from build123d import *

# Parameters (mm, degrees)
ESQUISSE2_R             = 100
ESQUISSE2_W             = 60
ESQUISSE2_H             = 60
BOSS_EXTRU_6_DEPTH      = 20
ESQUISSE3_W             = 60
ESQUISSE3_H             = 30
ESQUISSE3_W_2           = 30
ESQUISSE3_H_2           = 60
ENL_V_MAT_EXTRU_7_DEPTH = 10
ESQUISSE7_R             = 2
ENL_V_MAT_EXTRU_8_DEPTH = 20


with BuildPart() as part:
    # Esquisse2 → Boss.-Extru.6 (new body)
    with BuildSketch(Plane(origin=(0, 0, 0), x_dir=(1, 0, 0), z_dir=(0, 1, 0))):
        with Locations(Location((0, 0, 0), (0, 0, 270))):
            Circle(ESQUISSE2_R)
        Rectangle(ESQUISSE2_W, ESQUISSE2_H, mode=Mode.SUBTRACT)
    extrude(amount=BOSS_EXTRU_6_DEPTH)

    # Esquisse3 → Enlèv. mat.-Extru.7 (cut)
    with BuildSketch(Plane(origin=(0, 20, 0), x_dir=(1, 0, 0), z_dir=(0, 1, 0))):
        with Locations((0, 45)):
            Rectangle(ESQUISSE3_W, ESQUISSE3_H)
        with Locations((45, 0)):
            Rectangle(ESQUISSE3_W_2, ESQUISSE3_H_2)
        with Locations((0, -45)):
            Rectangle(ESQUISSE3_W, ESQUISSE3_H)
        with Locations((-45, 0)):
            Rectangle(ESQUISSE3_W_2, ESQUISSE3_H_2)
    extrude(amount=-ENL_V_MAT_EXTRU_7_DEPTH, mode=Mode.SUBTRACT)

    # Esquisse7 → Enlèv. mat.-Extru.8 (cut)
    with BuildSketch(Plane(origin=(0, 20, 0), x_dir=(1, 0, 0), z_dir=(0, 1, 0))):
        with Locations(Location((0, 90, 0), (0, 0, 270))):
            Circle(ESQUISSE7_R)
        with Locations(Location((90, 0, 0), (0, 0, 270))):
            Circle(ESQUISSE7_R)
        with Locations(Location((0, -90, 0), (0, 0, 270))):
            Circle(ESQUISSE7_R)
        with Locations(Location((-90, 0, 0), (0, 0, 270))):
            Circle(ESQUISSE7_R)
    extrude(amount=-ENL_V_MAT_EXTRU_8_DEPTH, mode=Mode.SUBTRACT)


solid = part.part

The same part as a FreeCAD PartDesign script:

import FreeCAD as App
import Part
import Sketcher
from FreeCAD import Vector


def add_polygon(sketch, points):
    """Adds a closed chain of lines whose ends are joined by coincident constraints."""
    first, n = sketch.GeometryCount, len(points)
    for a, b in zip(points, points[1:] + points[:1]):
        sketch.addGeometry(Part.LineSegment(App.Vector(*a, 0), App.Vector(*b, 0)), False)
    for i in range(n):
        sketch.addConstraint(Sketcher.Constraint("Coincident", first + i, 2, first + (i + 1) % n, 1))

doc = App.newDocument("Part")
body = doc.addObject("PartDesign::Body", "Body")

sketch1 = body.newObject("Sketcher::SketchObject", "Sketch")
sketch1.AttachmentSupport = (doc.getObject("XZ_Plane"), [""])
sketch1.MapMode = "FlatFace"
sketch1.addGeometry(Part.Circle(Vector(0, 0, 0), Vector(0, 0, 1), 100), False)
add_polygon(sketch1, [(30, 30), (-30, 30), (-30, -30), (30, -30)])
sketch1.addConstraint([
    Sketcher.Constraint("Horizontal", 1),
    Sketcher.Constraint("Vertical", 2),
    Sketcher.Constraint("Horizontal", 3),
    Sketcher.Constraint("Vertical", 4),
    Sketcher.Constraint("Coincident", 0, 3, -1, 1),
    Sketcher.Constraint("Symmetric", 1, 2, 3, 2, -1, 1),
    Sketcher.Constraint("Equal", 3, 2),
    Sketcher.Constraint("Diameter", 0, 200.0),
    Sketcher.Constraint("DistanceX", 1, 2, 1, 1, 60.0),
])
pad1 = body.newObject("PartDesign::Pad", "Pad")
pad1.Profile = sketch1
pad1.Length = 20
pad1.Reversed = True

sketch2 = body.newObject("Sketcher::SketchObject", "Sketch001")
sketch2.AttachmentSupport = (doc.getObject("XZ_Plane"), [""])
sketch2.MapMode = "FlatFace"
sketch2.AttachmentOffset = App.Placement(Vector(0, 0, -20), App.Rotation())
add_polygon(sketch2, [(-30, -60), (-30, -30), (30, -30), (30, -60)])
add_polygon(sketch2, [(30, -30), (30, 30), (60, 30), (60, -30)])
add_polygon(sketch2, [(-30, 30), (-30, 60), (30, 60), (30, 30)])
add_polygon(sketch2, [(-60, -30), (-60, 30), (-30, 30), (-30, -30)])
sketch2.addConstraint([
    Sketcher.Constraint("Vertical", 0),
    Sketcher.Constraint("Horizontal", 1),
    Sketcher.Constraint("Vertical", 2),
    Sketcher.Constraint("Horizontal", 3),
    Sketcher.Constraint("Vertical", 4),
    Sketcher.Constraint("Horizontal", 5),
    Sketcher.Constraint("Vertical", 6),
    Sketcher.Constraint("Horizontal", 7),
    Sketcher.Constraint("Vertical", 8),
    Sketcher.Constraint("Horizontal", 9),
    Sketcher.Constraint("Vertical", 10),
    Sketcher.Constraint("Horizontal", 11),
    Sketcher.Constraint("Vertical", 12),
    Sketcher.Constraint("Horizontal", 13),
    Sketcher.Constraint("Vertical", 14),
    Sketcher.Constraint("Horizontal", 15),
    Sketcher.Constraint("Coincident", 7, 2, 1, 2),
    Sketcher.Constraint("Coincident", 10, 2, 4, 2),
    Sketcher.Constraint("Coincident", 13, 2, 11, 2),
    Sketcher.Constraint("Coincident", 14, 2, 0, 2),
    Sketcher.Constraint("Symmetric", 0, 2, 4, 2, -1, 1),
    Sketcher.Constraint("Equal", 7, 13),
    Sketcher.Constraint("Equal", 15, 0),
    Sketcher.Constraint("Equal", 11, 4),
    Sketcher.Constraint("Equal", 2, 8),
    Sketcher.Constraint("DistanceX", 1, 1, 1, 2, 60.0),
    Sketcher.Constraint("DistanceX", 5, 1, 5, 2, 30.0),
])
pocket1 = body.newObject("PartDesign::Pocket", "Pocket")
pocket1.Profile = sketch2
pocket1.Length = 10
pocket1.Reversed = True

sketch3 = body.newObject("Sketcher::SketchObject", "Sketch002")
sketch3.AttachmentSupport = (doc.getObject("XZ_Plane"), [""])
sketch3.MapMode = "FlatFace"
sketch3.AttachmentOffset = App.Placement(Vector(0, 0, -20), App.Rotation())
sketch3.addGeometry([
    Part.Circle(Vector(0, -90, 0), Vector(0, 0, 1), 2),
    Part.Circle(Vector(90, 0, 0), Vector(0, 0, 1), 2),
    Part.Circle(Vector(0, 90, 0), Vector(0, 0, 1), 2),
    Part.Circle(Vector(-90, 0, 0), Vector(0, 0, 1), 2),
], False)
sketch3.addConstraint([
    Sketcher.Constraint("Equal", 0, 1),
    Sketcher.Constraint("Equal", 1, 2),
    Sketcher.Constraint("Equal", 2, 3),
    Sketcher.Constraint("Symmetric", 0, 3, 2, 3, -1, 1),
    Sketcher.Constraint("Symmetric", 1, 3, 3, 3, -1, 1),
    Sketcher.Constraint("PointOnObject", 0, 3, -2),
    Sketcher.Constraint("PointOnObject", 1, 3, -1),
    Sketcher.Constraint("Diameter", 0, 4.0),
    Sketcher.Constraint("DistanceY", 0, 3, -1, 1, 90.0),
    Sketcher.Constraint("DistanceX", -1, 1, 1, 3, 90.0),
])
pocket2 = body.newObject("PartDesign::Pocket", "Pocket001")
pocket2.Profile = sketch3
pocket2.Length = 20
pocket2.Reversed = True

doc.recompute()
